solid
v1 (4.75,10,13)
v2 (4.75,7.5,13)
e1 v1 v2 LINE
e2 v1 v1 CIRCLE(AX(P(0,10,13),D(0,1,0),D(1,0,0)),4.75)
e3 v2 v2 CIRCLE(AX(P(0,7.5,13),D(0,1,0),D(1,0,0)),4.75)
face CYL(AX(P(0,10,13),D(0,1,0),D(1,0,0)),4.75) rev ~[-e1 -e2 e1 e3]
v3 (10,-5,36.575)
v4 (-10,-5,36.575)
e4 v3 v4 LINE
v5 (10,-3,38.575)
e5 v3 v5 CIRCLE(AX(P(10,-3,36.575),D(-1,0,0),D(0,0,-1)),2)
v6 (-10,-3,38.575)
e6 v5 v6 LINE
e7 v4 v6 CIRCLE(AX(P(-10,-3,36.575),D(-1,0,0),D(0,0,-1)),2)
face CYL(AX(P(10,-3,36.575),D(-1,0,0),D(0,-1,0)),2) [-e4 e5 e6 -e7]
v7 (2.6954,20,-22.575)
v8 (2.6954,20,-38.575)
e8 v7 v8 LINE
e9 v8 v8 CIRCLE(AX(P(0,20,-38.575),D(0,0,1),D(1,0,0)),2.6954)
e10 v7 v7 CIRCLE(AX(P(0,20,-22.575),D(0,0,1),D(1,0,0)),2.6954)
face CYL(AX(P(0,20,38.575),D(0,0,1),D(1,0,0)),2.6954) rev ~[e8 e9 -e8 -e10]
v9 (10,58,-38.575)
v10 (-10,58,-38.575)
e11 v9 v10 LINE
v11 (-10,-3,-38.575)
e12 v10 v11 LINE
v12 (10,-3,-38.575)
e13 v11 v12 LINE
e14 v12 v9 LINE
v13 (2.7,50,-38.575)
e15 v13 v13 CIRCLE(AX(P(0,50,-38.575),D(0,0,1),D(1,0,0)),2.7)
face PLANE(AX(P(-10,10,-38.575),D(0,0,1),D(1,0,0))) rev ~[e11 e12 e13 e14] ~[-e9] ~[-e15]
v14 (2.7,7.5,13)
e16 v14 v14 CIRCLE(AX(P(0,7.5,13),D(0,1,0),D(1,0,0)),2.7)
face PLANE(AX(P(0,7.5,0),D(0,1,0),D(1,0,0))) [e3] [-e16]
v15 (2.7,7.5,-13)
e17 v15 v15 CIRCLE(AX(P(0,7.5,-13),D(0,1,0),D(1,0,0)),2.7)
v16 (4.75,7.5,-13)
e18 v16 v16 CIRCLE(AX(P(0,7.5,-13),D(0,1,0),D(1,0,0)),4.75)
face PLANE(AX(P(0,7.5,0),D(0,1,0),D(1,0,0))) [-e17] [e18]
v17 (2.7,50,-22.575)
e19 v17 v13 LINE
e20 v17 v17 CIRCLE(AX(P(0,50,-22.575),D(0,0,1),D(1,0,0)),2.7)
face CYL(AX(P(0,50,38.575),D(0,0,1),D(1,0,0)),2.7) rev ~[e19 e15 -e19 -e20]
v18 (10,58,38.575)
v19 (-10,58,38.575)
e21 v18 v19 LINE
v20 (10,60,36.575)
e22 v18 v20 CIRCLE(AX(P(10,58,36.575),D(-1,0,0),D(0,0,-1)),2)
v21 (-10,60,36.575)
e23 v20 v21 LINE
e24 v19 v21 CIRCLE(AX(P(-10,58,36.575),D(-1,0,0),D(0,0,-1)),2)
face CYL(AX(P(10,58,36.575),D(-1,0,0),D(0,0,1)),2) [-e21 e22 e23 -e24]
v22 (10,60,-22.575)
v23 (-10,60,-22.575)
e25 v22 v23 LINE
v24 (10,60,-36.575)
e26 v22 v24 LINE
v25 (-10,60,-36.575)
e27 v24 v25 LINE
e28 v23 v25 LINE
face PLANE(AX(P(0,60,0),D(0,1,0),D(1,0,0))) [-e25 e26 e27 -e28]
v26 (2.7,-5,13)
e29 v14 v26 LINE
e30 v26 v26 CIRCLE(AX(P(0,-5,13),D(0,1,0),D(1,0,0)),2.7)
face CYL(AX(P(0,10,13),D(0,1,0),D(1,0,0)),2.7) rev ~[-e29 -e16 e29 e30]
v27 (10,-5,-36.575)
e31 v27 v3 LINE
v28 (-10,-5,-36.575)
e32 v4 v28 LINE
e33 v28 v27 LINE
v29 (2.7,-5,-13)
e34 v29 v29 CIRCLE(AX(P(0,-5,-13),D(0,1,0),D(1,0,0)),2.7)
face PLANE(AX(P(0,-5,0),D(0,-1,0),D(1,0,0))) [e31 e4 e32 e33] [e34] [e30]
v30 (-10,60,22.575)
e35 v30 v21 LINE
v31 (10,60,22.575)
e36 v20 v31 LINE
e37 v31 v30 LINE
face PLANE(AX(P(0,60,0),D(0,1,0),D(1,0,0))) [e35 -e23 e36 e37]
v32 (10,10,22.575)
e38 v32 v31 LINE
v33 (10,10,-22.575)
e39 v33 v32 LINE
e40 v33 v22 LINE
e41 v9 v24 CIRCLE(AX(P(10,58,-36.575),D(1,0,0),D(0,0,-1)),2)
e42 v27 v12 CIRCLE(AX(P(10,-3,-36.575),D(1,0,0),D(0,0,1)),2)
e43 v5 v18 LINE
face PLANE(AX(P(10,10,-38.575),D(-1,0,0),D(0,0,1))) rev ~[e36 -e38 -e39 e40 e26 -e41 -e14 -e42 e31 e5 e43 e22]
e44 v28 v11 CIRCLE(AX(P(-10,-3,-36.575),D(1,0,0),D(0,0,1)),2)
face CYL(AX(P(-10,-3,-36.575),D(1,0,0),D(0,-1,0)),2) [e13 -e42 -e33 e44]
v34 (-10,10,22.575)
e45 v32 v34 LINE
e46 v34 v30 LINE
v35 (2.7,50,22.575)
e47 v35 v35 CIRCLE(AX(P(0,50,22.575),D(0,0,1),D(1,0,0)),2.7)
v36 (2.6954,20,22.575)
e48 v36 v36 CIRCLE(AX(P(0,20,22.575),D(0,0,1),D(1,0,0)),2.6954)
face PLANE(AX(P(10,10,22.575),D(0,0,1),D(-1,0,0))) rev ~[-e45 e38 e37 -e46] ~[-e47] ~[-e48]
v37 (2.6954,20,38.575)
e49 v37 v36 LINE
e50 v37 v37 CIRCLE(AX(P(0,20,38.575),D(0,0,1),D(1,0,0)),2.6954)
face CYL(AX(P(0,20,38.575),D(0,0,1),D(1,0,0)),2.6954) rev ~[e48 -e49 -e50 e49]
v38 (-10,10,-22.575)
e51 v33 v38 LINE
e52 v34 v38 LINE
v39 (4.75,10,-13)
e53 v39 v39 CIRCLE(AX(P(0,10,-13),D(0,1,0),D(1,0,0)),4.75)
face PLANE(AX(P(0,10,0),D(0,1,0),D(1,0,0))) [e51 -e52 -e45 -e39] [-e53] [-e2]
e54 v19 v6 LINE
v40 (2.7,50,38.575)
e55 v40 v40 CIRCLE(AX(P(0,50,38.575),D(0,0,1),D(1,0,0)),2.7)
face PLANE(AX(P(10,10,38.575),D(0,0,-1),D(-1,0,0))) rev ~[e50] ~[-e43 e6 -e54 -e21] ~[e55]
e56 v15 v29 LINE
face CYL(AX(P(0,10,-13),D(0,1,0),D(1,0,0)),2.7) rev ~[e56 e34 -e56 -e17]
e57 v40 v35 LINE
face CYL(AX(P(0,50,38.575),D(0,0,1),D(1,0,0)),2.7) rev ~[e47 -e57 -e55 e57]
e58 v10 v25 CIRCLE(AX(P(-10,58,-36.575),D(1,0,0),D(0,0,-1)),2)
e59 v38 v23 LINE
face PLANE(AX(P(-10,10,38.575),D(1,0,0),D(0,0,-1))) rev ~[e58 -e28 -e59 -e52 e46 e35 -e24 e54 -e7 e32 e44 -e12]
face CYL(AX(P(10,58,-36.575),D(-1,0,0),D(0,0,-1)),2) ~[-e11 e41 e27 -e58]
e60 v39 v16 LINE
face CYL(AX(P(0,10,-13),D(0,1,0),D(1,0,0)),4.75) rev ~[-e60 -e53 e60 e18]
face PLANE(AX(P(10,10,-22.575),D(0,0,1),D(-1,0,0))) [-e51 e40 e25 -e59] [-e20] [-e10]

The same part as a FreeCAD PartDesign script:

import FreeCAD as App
import Part
import Sketcher
Q = App.Units.Quantity


def edges_at(feature, points):
    """Names of the edges that pass closest to the given points."""
    edges = feature.Shape.Edges
    near = lambda p: min(range(len(edges)), key=lambda i: edges[i].distToShape(Part.Vertex(*p))[0])
    return sorted({f"Edge{near(p) + 1}" for p in points})


def add_polygon(sketch, points):
    """Adds a closed chain of lines whose ends are joined by coincident constraints."""
    first, n = sketch.GeometryCount, len(points)
    for a, b in zip(points, points[1:] + points[:1]):
        sketch.addGeometry(Part.LineSegment(App.Vector(*a, 0), App.Vector(*b, 0)), False)
    for i in range(n):
        sketch.addConstraint(Sketcher.Constraint("Coincident", first + i, 2, first + (i + 1) % n, 1))

doc = App.newDocument("Part")
body = doc.addObject("PartDesign::Body", "Body")

# Sketch on XZ plane
sketch1 = doc.addObject("Sketcher::SketchObject", "Sketch")
body.addObject(sketch1)
sketch1.AttachmentSupport = (doc.XZ_Plane, [""])
sketch1.MapMode = "FlatFace"
add_polygon(sketch1, [(-6.5, 25.5), (6.5, 25.5), (6.5, -25.5), (-6.5, -25.5)])  # lines 0-3
sketch1.addGeometry(Part.Circle(App.Vector(0, 0, 0), App.Vector(0, 0, 1), 3.5), False)  # 4
sketch1.addConstraint([
    Sketcher.Constraint("Horizontal", 0),
    Sketcher.Constraint("Vertical", 1),
    Sketcher.Constraint("Horizontal", 2),
    Sketcher.Constraint("Vertical", 3),
    Sketcher.Constraint("Coincident", 4, 3, -1, 1),
    Sketcher.Constraint("Symmetric", 0, 2, 2, 2, -1, 1),
    Sketcher.Constraint("Diameter", 4, Q("7 mm")),
    Sketcher.Constraint("DistanceY", 1, 2, 1, 1, Q("51 mm")),
    Sketcher.Constraint("DistanceX", 0, 1, 0, 2, Q("12.9 mm")),
])
pad1 = doc.addObject("PartDesign::Pad", "Pad")
body.addObject(pad1)
pad1.Profile = sketch1
pad1.Length = 10
pad1.Reversed = True

# Sketch on XZ plane
sketch2 = doc.addObject("Sketcher::SketchObject", "Sketch001")
body.addObject(sketch2)
sketch2.AttachmentSupport = (doc.XZ_Plane, [""])
sketch2.MapMode = "FlatFace"
sketch2.AttachmentOffset = App.Placement(App.Vector(0, 0, -10), App.Rotation())
sketch2.addGeometry(Part.Circle(App.Vector(0, 0, 0), App.Vector(0, 0, 1), 6), False)
sketch2.addConstraint([
    Sketcher.Constraint("Coincident", 0, 3, -1, 1),
    Sketcher.Constraint("Diameter", 0, Q("12 mm")),
])
pocket1 = doc.addObject("PartDesign::Pocket", "Pocket")
body.addObject(pocket1)
pocket1.Profile = sketch2
pocket1.Length = 6
pocket1.Reversed = True

# Sketch on XZ plane
sketch3 = doc.addObject("Sketcher::SketchObject", "Sketch002")
body.addObject(sketch3)
sketch3.AttachmentSupport = (doc.XZ_Plane, [""])
sketch3.MapMode = "FlatFace"
sketch3.AttachmentOffset = App.Placement(App.Vector(0, 0, -10), App.Rotation())
add_polygon(sketch3, [(-10, 39), (10, 39), (10, -39), (-10, -39)])  # lines 0-3
add_polygon(sketch3, [(-6, -26), (6, -26), (6, 26), (-6, 26)])  # lines 4-7
sketch3.addConstraint([
    Sketcher.Constraint("Horizontal", 0),
    Sketcher.Constraint("Vertical", 1),
    Sketcher.Constraint("Horizontal", 2),
    Sketcher.Constraint("Vertical", 3),
    Sketcher.Constraint("Horizontal", 4),
    Sketcher.Constraint("Vertical", 5),
    Sketcher.Constraint("Horizontal", 6),
    Sketcher.Constraint("Vertical", 7),
    Sketcher.Constraint("Symmetric", 0, 2, 2, 2, -1, 1),
    Sketcher.Constraint("Symmetric", 4, 2, 6, 2, -1, 1),
    Sketcher.Constraint("DistanceX", 0, 1, 0, 2, Q("20 mm")),
    Sketcher.Constraint("DistanceY", 1, 2, 1, 1, Q("77.15 mm")),
    Sketcher.Constraint("DistanceY", 5, 1, 5, 2, Q("51 mm")),
    Sketcher.Constraint("DistanceX", 4, 1, 4, 2, Q("12.9 mm")),
])
pad2 = doc.addObject("PartDesign::Pad", "Pad001")
body.addObject(pad2)
pad2.Profile = sketch3
pad2.Length = 15

# Sketch on XZ plane
sketch4 = doc.addObject("Sketcher::SketchObject", "Sketch003")
body.addObject(sketch4)
sketch4.AttachmentSupport = (doc.XZ_Plane, [""])
sketch4.MapMode = "FlatFace"
sketch4.AttachmentOffset = App.Placement(App.Vector(0, 0, -10), App.Rotation())
add_polygon(sketch4, [(-10, -23), (10, -23), (10, -39), (-10, -39)])  # lines 0-3
add_polygon(sketch4, [(-10, 39), (10, 39), (10, 23), (-10, 23)])  # lines 4-7
sketch4.addConstraint([
    Sketcher.Constraint("Horizontal", 0),
    Sketcher.Constraint("Vertical", 1),
    Sketcher.Constraint("Horizontal", 2),
    Sketcher.Constraint("Vertical", 3),
    Sketcher.Constraint("Horizontal", 4),
    Sketcher.Constraint("Vertical", 5),
    Sketcher.Constraint("Horizontal", 6),
    Sketcher.Constraint("Vertical", 7),
    Sketcher.Constraint("Symmetric", 2, 2, 4, 2, -1, 1),
    Sketcher.Constraint("Symmetric", 0, 2, 6, 2, -1, 1),
    Sketcher.Constraint("Vertical", 1, 2, 4, 2),
    Sketcher.Constraint("DistanceY", 1, 2, 1, 1, Q("16 mm")),
    Sketcher.Constraint("DistanceX", 0, 1, 0, 2, Q("20 mm")),
    Sketcher.Constraint("DistanceY", 0, 2, 4, 2, Q("61.15 mm")),
])
pad3 = doc.addObject("PartDesign::Pad", "Pad002")
body.addObject(pad3)
pad3.Profile = sketch4
pad3.Length = 50
pad3.Reversed = True

# Sketch on XY plane
sketch5 = doc.addObject("Sketcher::SketchObject", "Sketch004")
body.addObject(sketch5)
sketch5.AttachmentSupport = (doc.XY_Plane, [""])
sketch5.MapMode = "FlatFace"
sketch5.AttachmentOffset = App.Placement(App.Vector(0, 0, 38.575), App.Rotation())
sketch5.addGeometry([
    Part.Circle(App.Vector(0, 50, 0), App.Vector(0, 0, 1), 2.7),
    Part.Circle(App.Vector(0, 20, 0), App.Vector(0, 0, 1), 2.7),
], False)
sketch5.addConstraint([
    Sketcher.Constraint("PointOnObject", 0, 3, -2),
    Sketcher.Constraint("PointOnObject", 1, 3, -2),
    Sketcher.Constraint("Diameter", 0, Q("5.4 mm")),
    Sketcher.Constraint("DistanceY", -1, 1, 0, 3, Q("50 mm")),
    Sketcher.Constraint("DistanceY", -1, 1, 1, 3, Q("20 mm")),
    Sketcher.Constraint("Diameter", 1, Q("5.3908 mm")),
])
pocket2 = doc.addObject("PartDesign::Pocket", "Pocket001")
body.addObject(pocket2)
pocket2.Profile = sketch5
pocket2.Type = "ThroughAll"

# Sketch on XZ plane
sketch6 = doc.addObject("Sketcher::SketchObject", "Sketch005")
body.addObject(sketch6)
sketch6.AttachmentSupport = (doc.XZ_Plane, [""])
sketch6.MapMode = "FlatFace"
sketch6.AttachmentOffset = App.Placement(App.Vector(0, 0, -10), App.Rotation())
sketch6.addGeometry(Part.Circle(App.Vector(0, 0, 0), App.Vector(0, 0, 1), 6), False)
sketch6.addConstraint([
    Sketcher.Constraint("Coincident", 0, 3, -1, 1),
    Sketcher.Constraint("Diameter", 0, Q("12 mm")),
])
pad4 = doc.addObject("PartDesign::Pad", "Pad003")
body.addObject(pad4)
pad4.Profile = sketch6
pad4.Length = 10

# Sketch on XZ plane
sketch7 = doc.addObject("Sketcher::SketchObject", "Sketch006")
body.addObject(sketch7)
sketch7.AttachmentSupport = (doc.XZ_Plane, [""])
sketch7.MapMode = "FlatFace"
sketch7.AttachmentOffset = App.Placement(App.Vector(0, 0, 5), App.Rotation())
add_polygon(sketch7, [(6, -26), (6, 26), (-6, 26), (-6, -26)])  # lines 0-3
sketch7.addConstraint([
    Sketcher.Constraint("Vertical", 0),
    Sketcher.Constraint("Horizontal", 1),
    Sketcher.Constraint("Vertical", 2),
    Sketcher.Constraint("Horizontal", 3),
    Sketcher.Constraint("Symmetric", 0, 2, 2, 2, -1, 1),
    Sketcher.Constraint("DistanceY", 0, 1, 0, 2, Q("51 mm")),
    Sketcher.Constraint("DistanceX", 1, 2, 1, 1, Q("12.9 mm")),
])
pad5 = doc.addObject("PartDesign::Pad", "Pad004")
body.addObject(pad5)
pad5.Profile = sketch7
pad5.Length = 5
pad5.Reversed = True

# Sketch on XZ plane
sketch8 = doc.addObject("Sketcher::SketchObject", "Sketch007")
body.addObject(sketch8)
sketch8.AttachmentSupport = (doc.XZ_Plane, [""])
sketch8.MapMode = "FlatFace"
sketch8.AttachmentOffset = App.Placement(App.Vector(0, 0, -10), App.Rotation())
sketch8.addGeometry([
    Part.Circle(App.Vector(0, 13, 0), App.Vector(0, 0, 1), 2.7),
    Part.Circle(App.Vector(0, -13, 0), App.Vector(0, 0, 1), 2.7),
], False)
sketch8.addConstraint([
    Sketcher.Constraint("Equal", 0, 1),
    Sketcher.Constraint("Symmetric", 0, 3, 1, 3, -1, 1),
    Sketcher.Constraint("PointOnObject", 0, 3, -2),
    Sketcher.Constraint("Diameter", 0, Q("5.4 mm")),
    Sketcher.Constraint("DistanceY", -1, 1, 0, 3, Q("13 mm")),
])
pocket3 = doc.addObject("PartDesign::Pocket", "Pocket002")
body.addObject(pocket3)
pocket3.Profile = sketch8
pocket3.Type = "ThroughAll"
pocket3.Reversed = True

# Sketch on XZ plane
sketch9 = doc.addObject("Sketcher::SketchObject", "Sketch008")
body.addObject(sketch9)
sketch9.AttachmentSupport = (doc.XZ_Plane, [""])
sketch9.MapMode = "FlatFace"
sketch9.AttachmentOffset = App.Placement(App.Vector(0, 0, -10), App.Rotation())
sketch9.addGeometry([
    Part.Circle(App.Vector(0, 13, 0), App.Vector(0, 0, 1), 4.8),
    Part.Circle(App.Vector(0, 13, 0), App.Vector(0, 0, 1), 2.7),
    Part.Circle(App.Vector(0, -13, 0), App.Vector(0, 0, 1), 4.8),
    Part.Circle(App.Vector(0, -13, 0), App.Vector(0, 0, 1), 2.7),
], False)
sketch9.addConstraint([
    Sketcher.Constraint("Coincident", 1, 3, 0, 3),
    Sketcher.Constraint("Coincident", 3, 3, 2, 3),
    Sketcher.Constraint("Equal", 0, 2),
    Sketcher.Constraint("Equal", 1, 3),
    Sketcher.Constraint("Symmetric", 0, 3, 2, 3, -1, 1),
    Sketcher.Constraint("PointOnObject", 0, 3, -2),
    Sketcher.Constraint("Diameter", 0, Q("9.5 mm")),
    Sketcher.Constraint("Diameter", 1, Q("5.4 mm")),
    Sketcher.Constraint("DistanceY", -1, 1, 0, 3, Q("13 mm")),
])
pocket4 = doc.addObject("PartDesign::Pocket", "Pocket003")
body.addObject(pocket4)
pocket4.Profile = sketch9
pocket4.Length = 2.5
pocket4.Reversed = True
doc.recompute()

fillet = doc.addObject("PartDesign::Fillet", "Fillet")
body.addObject(fillet)
fillet.Base = (pocket4, edges_at(pocket4, [
    (0, -5, 38.575),
    (0, 60, 38.575),
    (0, 60, -38.575),
    (0, -5, -38.575),
]))
fillet.Radius = 2

doc.recompute()
